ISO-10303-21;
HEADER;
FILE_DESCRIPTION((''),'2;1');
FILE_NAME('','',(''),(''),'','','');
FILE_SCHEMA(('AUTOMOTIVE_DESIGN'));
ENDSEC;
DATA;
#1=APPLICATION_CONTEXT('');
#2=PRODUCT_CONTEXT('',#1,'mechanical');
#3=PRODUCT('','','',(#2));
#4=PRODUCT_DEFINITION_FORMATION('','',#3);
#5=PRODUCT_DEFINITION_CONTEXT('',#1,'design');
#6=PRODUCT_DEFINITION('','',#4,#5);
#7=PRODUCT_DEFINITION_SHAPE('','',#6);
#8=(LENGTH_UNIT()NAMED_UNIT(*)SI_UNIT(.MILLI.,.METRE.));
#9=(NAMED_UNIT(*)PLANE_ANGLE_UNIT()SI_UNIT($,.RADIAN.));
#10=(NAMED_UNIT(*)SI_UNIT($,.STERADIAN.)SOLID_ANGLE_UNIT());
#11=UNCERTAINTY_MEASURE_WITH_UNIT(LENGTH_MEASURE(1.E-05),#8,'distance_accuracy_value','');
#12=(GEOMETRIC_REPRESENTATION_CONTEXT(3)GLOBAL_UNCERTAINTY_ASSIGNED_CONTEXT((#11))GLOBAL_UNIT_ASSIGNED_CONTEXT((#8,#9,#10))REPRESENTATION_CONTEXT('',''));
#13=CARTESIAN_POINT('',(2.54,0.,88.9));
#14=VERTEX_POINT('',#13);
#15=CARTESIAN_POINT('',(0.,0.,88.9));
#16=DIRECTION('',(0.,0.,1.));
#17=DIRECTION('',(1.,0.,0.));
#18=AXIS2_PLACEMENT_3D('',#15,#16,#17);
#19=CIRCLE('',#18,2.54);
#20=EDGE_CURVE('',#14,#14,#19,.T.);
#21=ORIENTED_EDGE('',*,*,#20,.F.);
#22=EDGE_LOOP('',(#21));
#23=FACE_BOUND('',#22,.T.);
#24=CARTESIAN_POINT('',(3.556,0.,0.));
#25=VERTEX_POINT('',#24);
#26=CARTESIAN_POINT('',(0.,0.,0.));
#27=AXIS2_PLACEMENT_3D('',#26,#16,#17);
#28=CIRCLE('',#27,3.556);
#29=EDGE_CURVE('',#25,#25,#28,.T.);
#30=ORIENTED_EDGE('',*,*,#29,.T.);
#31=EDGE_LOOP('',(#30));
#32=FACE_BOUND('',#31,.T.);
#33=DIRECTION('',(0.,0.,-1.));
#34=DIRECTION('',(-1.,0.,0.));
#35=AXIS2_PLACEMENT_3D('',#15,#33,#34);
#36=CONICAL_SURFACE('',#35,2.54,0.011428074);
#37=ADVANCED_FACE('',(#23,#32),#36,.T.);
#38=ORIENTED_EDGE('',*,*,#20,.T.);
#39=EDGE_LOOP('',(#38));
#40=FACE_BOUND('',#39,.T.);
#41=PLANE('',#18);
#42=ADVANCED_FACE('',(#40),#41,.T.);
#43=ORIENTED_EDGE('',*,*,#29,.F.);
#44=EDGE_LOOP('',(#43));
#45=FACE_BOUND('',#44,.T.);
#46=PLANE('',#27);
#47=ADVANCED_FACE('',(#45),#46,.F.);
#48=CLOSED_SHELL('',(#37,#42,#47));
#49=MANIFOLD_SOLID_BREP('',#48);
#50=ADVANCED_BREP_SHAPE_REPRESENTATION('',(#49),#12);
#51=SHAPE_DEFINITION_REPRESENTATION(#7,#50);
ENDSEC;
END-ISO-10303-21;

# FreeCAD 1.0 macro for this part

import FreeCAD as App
import Part
import Sketcher

V = App.Vector
Q = App.Units.Quantity

doc = App.newDocument("Part")
body = doc.addObject("PartDesign::Body", "Body")

# Sketch on XY plane
sketch1 = doc.addObject("Sketcher::SketchObject", "Sketch")
body.addObject(sketch1)
sketch1.AttachmentSupport = (doc.XY_Plane, [""])
sketch1.MapMode = "FlatFace"
sketch1.AttachmentOffset = App.Placement(V(0, 0, 3.5 * 25.4), App.Rotation())
sketch1.addGeometry(Part.Circle(V(0, 0, 0), V(0, 0, 1), 2.5), False)
sketch1.addConstraint([
    Sketcher.Constraint("Coincident", 0, 3, -1, 1),
    Sketcher.Constraint("Diameter", 0, Q("0.2 in")),
])

# Sketch on XY plane
sketch2 = doc.addObject("Sketcher::SketchObject", "Sketch001")
body.addObject(sketch2)
sketch2.AttachmentSupport = (doc.XY_Plane, [""])
sketch2.MapMode = "FlatFace"
sketch2.addGeometry(Part.Circle(V(0, 0, 0), V(0, 0, 1), 3.6), False)
sketch2.addConstraint([
    Sketcher.Constraint("Coincident", 0, 3, -1, 1),
    Sketcher.Constraint("Diameter", 0, Q("0.28 in")),
])

additiveloft = doc.addObject("PartDesign::AdditiveLoft", "AdditiveLoft")
body.addObject(additiveloft)
additiveloft.Profile = sketch1
additiveloft.Sections = [sketch2]

doc.recompute()
